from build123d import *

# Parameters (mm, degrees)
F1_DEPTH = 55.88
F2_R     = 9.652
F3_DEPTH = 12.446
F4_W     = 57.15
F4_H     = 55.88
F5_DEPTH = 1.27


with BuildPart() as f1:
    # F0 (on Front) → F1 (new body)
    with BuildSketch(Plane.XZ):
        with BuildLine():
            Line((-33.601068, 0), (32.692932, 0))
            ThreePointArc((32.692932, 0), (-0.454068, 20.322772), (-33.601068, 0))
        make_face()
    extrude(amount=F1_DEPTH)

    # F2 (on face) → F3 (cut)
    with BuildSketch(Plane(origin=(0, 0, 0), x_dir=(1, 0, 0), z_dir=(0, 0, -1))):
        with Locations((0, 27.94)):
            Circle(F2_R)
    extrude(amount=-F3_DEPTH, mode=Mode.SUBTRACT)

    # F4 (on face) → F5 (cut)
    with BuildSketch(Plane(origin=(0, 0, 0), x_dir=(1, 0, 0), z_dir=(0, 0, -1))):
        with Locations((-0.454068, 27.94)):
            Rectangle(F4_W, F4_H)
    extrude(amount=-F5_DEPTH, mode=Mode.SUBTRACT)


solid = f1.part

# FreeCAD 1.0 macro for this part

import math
import FreeCAD as App
import Part
import Sketcher
Q = App.Units.Quantity


def add_polygon(sketch, points):
    """Adds a closed chain of lines whose ends are joined by coincident constraints."""
    first, n = sketch.GeometryCount, len(points)
    for a, b in zip(points, points[1:] + points[:1]):
        sketch.addGeometry(Part.LineSegment(App.Vector(*a, 0), App.Vector(*b, 0)), False)
    for i in range(n):
        sketch.addConstraint(Sketcher.Constraint("Coincident", first + i, 2, first + (i + 1) % n, 1))

doc = App.newDocument("Part")
params = doc.addObject("Spreadsheet::Sheet", "Params")
for row, (alias, value) in enumerate([
    ("sketch1_width", "2.61 in"),
    ("pad1_length", "2.2 in"),
    ("sketch2_diameter", "0.76 in"),
    ("pocket1_length", "0.49 in"),
    ("sketch3_height", "2.2 in"),
    ("sketch3_width", "2.25 in"),
    ("pocket2_length", "0.05 in"),
], start=1):
    params.set(f"A{row}", alias)
    params.set(f"B{row}", "=" + value)
    params.setAlias(f"B{row}", alias)

body = doc.addObject("PartDesign::Body", "Body")

# Sketch on XZ plane
sketch1 = body.newObject("Sketcher::SketchObject", "Sketch")
sketch1.AttachmentSupport = (doc.getObject("XZ_Plane"), [""])
sketch1.MapMode = "FlatFace"
sketch1.addGeometry(Part.LineSegment(App.Vector(-33.601068, 0, 0), App.Vector(32.692932, 0, 0)), False)
sketch1.addGeometry(Part.ArcOfCircle(Part.Circle(App.Vector(-0.454068, -16.870448, 0), App.Vector(0, 0, 1), 37.19322), math.radians(26.974207), math.radians(153.025793)), False)
sketch1.addConstraint(Sketcher.Constraint("Coincident", 0, 1, 1, 2))
sketch1.addConstraint(Sketcher.Constraint("Coincident", 1, 1, 0, 2))
sketch1.addConstraint(Sketcher.Constraint("Horizontal", 0))
sketch1.addConstraint(Sketcher.Constraint("PointOnObject", 0, 1, -1))
sketch1.addConstraint(Sketcher.Constraint("DistanceX", 0, 1, 0, 2, Q("2.61 in")))
sketch1.addConstraint(Sketcher.Constraint("Radius", 1, Q("1.4643 in")))
sketch1.addConstraint(Sketcher.Constraint("DistanceX", 1, 3, -1, 1, Q("0.454068 mm")))
sketch1.setExpression("Constraints[4]", "Params.sketch1_width")
pad1 = body.newObject("PartDesign::Pad", "Pad")
pad1.Profile = sketch1
pad1.setExpression("Length", "Params.pad1_length")

# Sketch on XY plane
sketch2 = body.newObject("Sketcher::SketchObject", "Sketch001")
sketch2.AttachmentSupport = (doc.getObject("XY_Plane"), [""])
sketch2.MapMode = "FlatFace"
sketch2.addGeometry(Part.Circle(App.Vector(0, -27.94, 0), App.Vector(0, 0, 1), 9.652), False)
sketch2.addConstraint(Sketcher.Constraint("PointOnObject", 0, 3, -2))
sketch2.addConstraint(Sketcher.Constraint("Diameter", 0, Q("0.76 in")))
sketch2.addConstraint(Sketcher.Constraint("DistanceY", 0, 3, -1, 1, Q("1.1 in")))
sketch2.setExpression("Constraints[1]", "Params.sketch2_diameter")
pocket1 = body.newObject("PartDesign::Pocket", "Pocket")
pocket1.Profile = sketch2
pocket1.setExpression("Length", "Params.pocket1_length")
pocket1.Reversed = True

# Sketch on XY plane
sketch3 = body.newObject("Sketcher::SketchObject", "Sketch002")
sketch3.AttachmentSupport = (doc.getObject("XY_Plane"), [""])
sketch3.MapMode = "FlatFace"
add_polygon(sketch3, [(-29.029068, -55.88), (-29.029068, 0), (28.120932, 0), (28.120932, -55.88)])  # lines 0-3
sketch3.addConstraint(Sketcher.Constraint("Vertical", 0))
sketch3.addConstraint(Sketcher.Constraint("Horizontal", 1))
sketch3.addConstraint(Sketcher.Constraint("Vertical", 2))
sketch3.addConstraint(Sketcher.Constraint("Horizontal", 3))
sketch3.addConstraint(Sketcher.Constraint("PointOnObject", 0, 2, -1))
sketch3.addConstraint(Sketcher.Constraint("DistanceY", 0, 1, 0, 2, Q("2.2 in")))
sketch3.addConstraint(Sketcher.Constraint("DistanceX", 1, 1, 1, 2, Q("2.25 in")))
sketch3.addConstraint(Sketcher.Constraint("DistanceX", -1, 1, 1, 2, Q("28.120932 mm")))
sketch3.setExpression("Constraints[9]", "Params.sketch3_height")
sketch3.setExpression("Constraints[10]", "Params.sketch3_width")
pocket2 = body.newObject("PartDesign::Pocket", "Pocket001")
pocket2.Profile = sketch3
pocket2.setExpression("Length", "Params.pocket2_length")
pocket2.Reversed = True

doc.recompute()
